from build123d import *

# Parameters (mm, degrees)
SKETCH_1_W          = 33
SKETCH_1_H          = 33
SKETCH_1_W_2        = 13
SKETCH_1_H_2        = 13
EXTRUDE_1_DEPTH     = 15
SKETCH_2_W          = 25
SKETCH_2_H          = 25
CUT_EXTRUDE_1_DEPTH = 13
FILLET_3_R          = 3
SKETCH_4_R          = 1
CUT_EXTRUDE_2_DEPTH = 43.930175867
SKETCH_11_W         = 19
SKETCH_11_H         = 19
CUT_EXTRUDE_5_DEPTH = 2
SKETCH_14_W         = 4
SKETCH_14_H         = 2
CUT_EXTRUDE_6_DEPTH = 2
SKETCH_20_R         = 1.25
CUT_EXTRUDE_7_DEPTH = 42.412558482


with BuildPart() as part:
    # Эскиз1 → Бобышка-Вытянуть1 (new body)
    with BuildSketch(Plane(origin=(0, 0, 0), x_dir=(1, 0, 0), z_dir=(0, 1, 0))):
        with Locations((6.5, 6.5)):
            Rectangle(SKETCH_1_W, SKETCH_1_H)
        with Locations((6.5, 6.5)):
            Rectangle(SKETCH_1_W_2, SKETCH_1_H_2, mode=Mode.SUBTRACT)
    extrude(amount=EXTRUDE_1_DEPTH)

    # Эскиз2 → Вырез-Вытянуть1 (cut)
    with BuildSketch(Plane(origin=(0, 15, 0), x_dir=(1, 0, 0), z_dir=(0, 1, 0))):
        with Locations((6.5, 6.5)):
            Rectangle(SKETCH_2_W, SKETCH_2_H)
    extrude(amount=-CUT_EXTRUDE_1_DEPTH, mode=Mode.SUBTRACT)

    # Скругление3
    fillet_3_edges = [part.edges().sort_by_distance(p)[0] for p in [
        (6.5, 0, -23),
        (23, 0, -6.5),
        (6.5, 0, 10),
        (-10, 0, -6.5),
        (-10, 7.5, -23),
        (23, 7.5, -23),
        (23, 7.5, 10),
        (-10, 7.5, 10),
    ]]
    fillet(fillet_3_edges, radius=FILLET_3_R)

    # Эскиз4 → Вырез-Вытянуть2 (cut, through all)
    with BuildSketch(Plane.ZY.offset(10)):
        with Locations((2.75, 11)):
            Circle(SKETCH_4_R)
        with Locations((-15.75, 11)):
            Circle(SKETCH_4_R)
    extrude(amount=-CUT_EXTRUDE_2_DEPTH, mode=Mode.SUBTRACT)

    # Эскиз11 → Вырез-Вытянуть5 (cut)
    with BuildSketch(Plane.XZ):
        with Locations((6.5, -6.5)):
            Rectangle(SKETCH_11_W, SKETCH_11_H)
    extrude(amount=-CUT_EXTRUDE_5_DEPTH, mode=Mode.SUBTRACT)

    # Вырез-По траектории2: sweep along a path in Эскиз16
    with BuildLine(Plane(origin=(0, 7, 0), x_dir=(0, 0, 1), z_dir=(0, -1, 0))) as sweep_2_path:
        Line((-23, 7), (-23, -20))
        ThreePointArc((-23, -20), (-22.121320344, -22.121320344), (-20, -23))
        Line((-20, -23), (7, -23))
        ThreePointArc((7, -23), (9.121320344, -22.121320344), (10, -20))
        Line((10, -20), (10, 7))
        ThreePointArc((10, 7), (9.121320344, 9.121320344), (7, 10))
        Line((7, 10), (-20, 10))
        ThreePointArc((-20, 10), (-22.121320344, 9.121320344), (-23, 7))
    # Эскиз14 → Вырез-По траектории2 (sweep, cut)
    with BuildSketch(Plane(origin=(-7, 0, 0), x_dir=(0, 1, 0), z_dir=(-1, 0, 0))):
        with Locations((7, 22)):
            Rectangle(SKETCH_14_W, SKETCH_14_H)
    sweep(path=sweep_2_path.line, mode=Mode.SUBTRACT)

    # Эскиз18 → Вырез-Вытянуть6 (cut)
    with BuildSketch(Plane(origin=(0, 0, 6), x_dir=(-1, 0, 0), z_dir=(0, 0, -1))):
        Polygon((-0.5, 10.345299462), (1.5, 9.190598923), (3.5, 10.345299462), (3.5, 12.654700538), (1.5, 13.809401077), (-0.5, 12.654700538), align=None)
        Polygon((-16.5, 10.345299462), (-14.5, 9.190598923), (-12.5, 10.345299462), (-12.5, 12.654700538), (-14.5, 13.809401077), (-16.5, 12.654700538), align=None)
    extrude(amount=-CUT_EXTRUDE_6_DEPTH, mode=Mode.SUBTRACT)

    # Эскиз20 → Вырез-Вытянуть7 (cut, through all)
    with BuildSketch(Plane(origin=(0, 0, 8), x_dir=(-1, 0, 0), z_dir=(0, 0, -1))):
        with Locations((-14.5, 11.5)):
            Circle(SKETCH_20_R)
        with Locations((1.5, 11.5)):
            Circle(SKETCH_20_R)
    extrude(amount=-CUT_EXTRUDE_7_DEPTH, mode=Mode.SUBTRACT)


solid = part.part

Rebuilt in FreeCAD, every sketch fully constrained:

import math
import FreeCAD as App
import Part
import Sketcher
Q = App.Units.Quantity


def edges_at(feature, points):
    """Names of the edges that pass closest to the given points."""
    edges = feature.Shape.Edges
    near = lambda p: min(range(len(edges)), key=lambda i: edges[i].distToShape(Part.Vertex(*p))[0])
    return sorted({f"Edge{near(p) + 1}" for p in points})


def add_polygon(sketch, points):
    """Adds a closed chain of lines whose ends are joined by coincident constraints."""
    first, n = sketch.GeometryCount, len(points)
    for a, b in zip(points, points[1:] + points[:1]):
        sketch.addGeometry(Part.LineSegment(App.Vector(*a, 0), App.Vector(*b, 0)), False)
    for i in range(n):
        sketch.addConstraint(Sketcher.Constraint("Coincident", first + i, 2, first + (i + 1) % n, 1))

doc = App.newDocument("Part")
body = doc.addObject("PartDesign::Body", "Body")

# Sketch on XZ plane
sketch1 = doc.addObject("Sketcher::SketchObject", "Sketch")
body.addObject(sketch1)
sketch1.AttachmentSupport = (doc.XZ_Plane, [""])
sketch1.MapMode = "FlatFace"
add_polygon(sketch1, [(-10, -23), (-10, 10), (23, 10), (23, -23)])  # lines 0-3
add_polygon(sketch1, [(13, 0), (0, 0), (0, -13), (13, -13)])  # lines 4-7
sketch1.addConstraint([
    Sketcher.Constraint("Vertical", 0),
    Sketcher.Constraint("Horizontal", 1),
    Sketcher.Constraint("Vertical", 2),
    Sketcher.Constraint("Horizontal", 3),
    Sketcher.Constraint("Horizontal", 4),
    Sketcher.Constraint("Vertical", 5),
    Sketcher.Constraint("Horizontal", 6),
    Sketcher.Constraint("Vertical", 7),
    Sketcher.Constraint("Coincident", 4, 2, -1, 1),
    Sketcher.Constraint("Equal", 3, 0),
    Sketcher.Constraint("Equal", 6, 5),
    Sketcher.Constraint("DistanceX", 1, 1, 1, 2, Q("33 mm")),
    Sketcher.Constraint("DistanceX", 4, 2, 4, 1, Q("13 mm")),
    Sketcher.Constraint("DistanceX", 0, 2, -1, 1, Q("10 mm")),
    Sketcher.Constraint("DistanceY", -1, 1, 0, 2, Q("10 mm")),
])
pad1 = doc.addObject("PartDesign::Pad", "Pad")
body.addObject(pad1)
pad1.Profile = sketch1
pad1.Length = 15
pad1.Reversed = True

# Sketch on XZ plane
sketch2 = doc.addObject("Sketcher::SketchObject", "Sketch001")
body.addObject(sketch2)
sketch2.AttachmentSupport = (doc.XZ_Plane, [""])
sketch2.MapMode = "FlatFace"
sketch2.AttachmentOffset = App.Placement(App.Vector(0, 0, -15), App.Rotation())
add_polygon(sketch2, [(-6, -19), (-6, 6), (19, 6), (19, -19)])  # lines 0-3
sketch2.addConstraint([
    Sketcher.Constraint("Vertical", 0),
    Sketcher.Constraint("Horizontal", 1),
    Sketcher.Constraint("Vertical", 2),
    Sketcher.Constraint("Horizontal", 3),
    Sketcher.Constraint("Equal", 3, 0),
    Sketcher.Constraint("DistanceX", 1, 1, 1, 2, Q("25 mm")),
    Sketcher.Constraint("DistanceX", 0, 2, -1, 1, Q("6 mm")),
    Sketcher.Constraint("DistanceY", -1, 1, 0, 2, Q("6 mm")),
])
pocket1 = doc.addObject("PartDesign::Pocket", "Pocket")
body.addObject(pocket1)
pocket1.Profile = sketch2
pocket1.Length = 13
pocket1.Reversed = True
doc.recompute()

fillet = doc.addObject("PartDesign::Fillet", "Fillet")
body.addObject(fillet)
fillet.Base = (pocket1, edges_at(pocket1, [
    (6.5, 0, -23),
    (23, 0, -6.5),
    (6.5, 0, 10),
    (-10, 0, -6.5),
    (-10, 7.5, -23),
    (23, 7.5, -23),
    (23, 7.5, 10),
    (-10, 7.5, 10),
]))
fillet.Radius = 3

# Sketch on YZ plane
sketch3 = doc.addObject("Sketcher::SketchObject", "Sketch002")
body.addObject(sketch3)
sketch3.AttachmentSupport = (doc.YZ_Plane, [""])
sketch3.MapMode = "FlatFace"
sketch3.AttachmentOffset = App.Placement(App.Vector(0, 0, -10), App.Rotation())
sketch3.addGeometry([
    Part.Circle(App.Vector(11, 2.8, 0), App.Vector(0, 0, 1), 1),
    Part.Circle(App.Vector(11, -15.8, 0), App.Vector(0, 0, 1), 1),
], False)
sketch3.addConstraint([
    Sketcher.Constraint("Equal", 0, 1),
    Sketcher.Constraint("Vertical", 0, 3, 1, 3),
    Sketcher.Constraint("Diameter", 0, Q("2 mm")),
    Sketcher.Constraint("DistanceX", -1, 1, 0, 3, Q("11 mm")),
    Sketcher.Constraint("DistanceY", 1, 3, 0, 3, Q("18.5 mm")),
    Sketcher.Constraint("DistanceY", -1, 1, 0, 3, Q("2.75 mm")),
])
pocket2 = doc.addObject("PartDesign::Pocket", "Pocket001")
body.addObject(pocket2)
pocket2.Profile = sketch3
pocket2.Type = "ThroughAll"
pocket2.Reversed = True

# Sketch on XZ plane
sketch4 = doc.addObject("Sketcher::SketchObject", "Sketch003")
body.addObject(sketch4)
sketch4.AttachmentSupport = (doc.XZ_Plane, [""])
sketch4.MapMode = "FlatFace"
add_polygon(sketch4, [(-3, 3), (-3, -16), (16, -16), (16, 3)])  # lines 0-3
sketch4.addConstraint([
    Sketcher.Constraint("Vertical", 0),
    Sketcher.Constraint("Horizontal", 1),
    Sketcher.Constraint("Vertical", 2),
    Sketcher.Constraint("Horizontal", 3),
    Sketcher.Constraint("Equal", 3, 0),
    Sketcher.Constraint("DistanceX", 1, 1, 1, 2, Q("19 mm")),
    Sketcher.Constraint("DistanceX", 0, 2, -1, 1, Q("3 mm")),
    Sketcher.Constraint("DistanceY", 0, 2, -1, 1, Q("16 mm")),
])
pocket3 = doc.addObject("PartDesign::Pocket", "Pocket002")
body.addObject(pocket3)
pocket3.Profile = sketch4
pocket3.Length = 2

# Sketch on YZ plane
sketch5 = doc.addObject("Sketcher::SketchObject", "Sketch004")
body.addObject(sketch5)
sketch5.AttachmentSupport = (doc.YZ_Plane, [""])
sketch5.MapMode = "FlatFace"
sketch5.AttachmentOffset = App.Placement(App.Vector(0, 0, -7), App.Rotation())
add_polygon(sketch5, [(5, -23), (5, -21), (9, -21), (9, -23)])  # lines 0-3
sketch5.addConstraint([
    Sketcher.Constraint("Vertical", 0),
    Sketcher.Constraint("Horizontal", 1),
    Sketcher.Constraint("Vertical", 2),
    Sketcher.Constraint("Horizontal", 3),
    Sketcher.Constraint("DistanceX", 1, 1, 1, 2, Q("4 mm")),
    Sketcher.Constraint("DistanceY", 0, 1, 0, 2, Q("2 mm")),
    Sketcher.Constraint("DistanceX", -1, 1, 0, 2, Q("5 mm")),
    Sketcher.Constraint("DistanceY", 0, 2, -1, 1, Q("21 mm")),
])

# Sketch on XZ plane
sketch6 = doc.addObject("Sketcher::SketchObject", "Sketch005")
body.addObject(sketch6)
sketch6.AttachmentSupport = (doc.XZ_Plane, [""])
sketch6.MapMode = "FlatFace"
sketch6.AttachmentOffset = App.Placement(App.Vector(0, 0, -7), App.Rotation())
sketch6.addGeometry([
    Part.LineSegment(App.Vector(-7, -23, 0), App.Vector(20, -23, 0)),  # 0
    Part.ArcOfCircle(Part.Circle(App.Vector(20, -20, 0), App.Vector(0, 0, 1), 3), math.radians(-90), math.radians(0)),  # 1
    Part.LineSegment(App.Vector(23, -20, 0), App.Vector(23, 7, 0)),  # 2
    Part.ArcOfCircle(Part.Circle(App.Vector(20, 7, 0), App.Vector(0, 0, 1), 3), math.radians(0), math.radians(90)),  # 3
    Part.LineSegment(App.Vector(20, 10, 0), App.Vector(-7, 10, 0)),  # 4
    Part.ArcOfCircle(Part.Circle(App.Vector(-7, 7, 0), App.Vector(0, 0, 1), 3), math.radians(90), math.radians(180)),  # 5
    Part.LineSegment(App.Vector(-10, 7, 0), App.Vector(-10, -20, 0)),  # 6
    Part.ArcOfCircle(Part.Circle(App.Vector(-7, -20, 0), App.Vector(0, 0, 1), 3), math.radians(180), math.radians(270)),  # 7
], False)
sketch6.addConstraint([
    Sketcher.Constraint("Tangent", 0, 2, 1, 1),
    Sketcher.Constraint("Tangent", 1, 2, 2, 1),
    Sketcher.Constraint("Tangent", 2, 2, 3, 1),
    Sketcher.Constraint("Tangent", 3, 2, 4, 1),
    Sketcher.Constraint("Tangent", 4, 2, 5, 1),
    Sketcher.Constraint("Tangent", 5, 2, 6, 1),
    Sketcher.Constraint("Tangent", 6, 2, 7, 1),
    Sketcher.Constraint("Tangent", 7, 2, 0, 1),
    Sketcher.Constraint("Horizontal", 0),
    Sketcher.Constraint("Vertical", 2),
    Sketcher.Constraint("Horizontal", 4),
    Sketcher.Constraint("Vertical", 6),
    Sketcher.Constraint("Equal", 1, 3),
    Sketcher.Constraint("Equal", 3, 5),
    Sketcher.Constraint("Equal", 5, 7),
    Sketcher.Constraint("Equal", 4, 2),
    Sketcher.Constraint("Radius", 1, Q("3 mm")),
    Sketcher.Constraint("DistanceX", 0, 1, 0, 2, Q("27 mm")),
    Sketcher.Constraint("DistanceX", -1, 1, 1, 3, Q("20 mm")),
    Sketcher.Constraint("DistanceY", 1, 3, -1, 1, Q("20 mm")),
])
doc.recompute()

subtractivepipe = doc.addObject("PartDesign::SubtractivePipe", "SubtractivePipe")
body.addObject(subtractivepipe)
subtractivepipe.Profile = sketch5
subtractivepipe.Spine = (sketch6, ["Edge1", "Edge2", "Edge3", "Edge4", "Edge5", "Edge6", "Edge7", "Edge8"])

# Sketch on XY plane
sketch7 = doc.addObject("Sketcher::SketchObject", "Sketch006")
body.addObject(sketch7)
sketch7.AttachmentSupport = (doc.XY_Plane, [""])
sketch7.MapMode = "FlatFace"
sketch7.AttachmentOffset = App.Placement(App.Vector(0, 0, 6), App.Rotation())
add_polygon(sketch7, [(0.5, 10.3), (-1.5, 9.2), (-3.5, 10.3), (-3.5, 12.7), (-1.5, 13.8), (0.5, 12.7)])  # lines 0-5
add_polygon(sketch7, [(16.5, 10.3), (14.5, 9.2), (12.5, 10.3), (12.5, 12.7), (14.5, 13.8), (16.5, 12.7)])  # lines 6-11
sketch7.addConstraint([
    Sketcher.Constraint("Vertical", 2),
    Sketcher.Constraint("Vertical", 5),
    Sketcher.Constraint("Vertical", 8),
    Sketcher.Constraint("Vertical", 11),
    Sketcher.Constraint("Parallel", 0, 3),
    Sketcher.Constraint("Parallel", 1, 4),
    Sketcher.Constraint("Parallel", 3, 6),
    Sketcher.Constraint("Parallel", 4, 7),
    Sketcher.Constraint("Parallel", 6, 9),
    Sketcher.Constraint("Parallel", 7, 10),
    Sketcher.Constraint("Horizontal", 2, 2, 4, 2),
    Sketcher.Constraint("Horizontal", 1, 2, 5, 2),
    Sketcher.Constraint("Horizontal", 0, 2, 6, 2),
    Sketcher.Constraint("Horizontal", 5, 2, 7, 2),
    Sketcher.Constraint("Horizontal", 4, 2, 8, 2),
    Sketcher.Constraint("Horizontal", 3, 2, 9, 2),
    Sketcher.Constraint("Horizontal", 8, 2, 10, 2),
    Sketcher.Constraint("Vertical", 0, 2, 3, 2),
    Sketcher.Constraint("Angle", 0, Q("-150 deg")),
    Sketcher.Constraint("DistanceX", 1, 2, 0, 2, Q("2 mm")),
    Sketcher.Constraint("DistanceX", 5, 2, 6, 2, Q("14 mm")),
    Sketcher.Constraint("DistanceX", 0, 2, -1, 1, Q("1.5 mm")),
    Sketcher.Constraint("DistanceY", 2, 1, 2, 2, Q("2.309401 mm")),
    Sketcher.Constraint("DistanceY", -1, 1, 0, 2, Q("9.190599 mm")),
])
pocket4 = doc.addObject("PartDesign::Pocket", "Pocket003")
body.addObject(pocket4)
pocket4.Profile = sketch7
pocket4.Length = 2
pocket4.Reversed = True

# Sketch on XY plane
sketch8 = doc.addObject("Sketcher::SketchObject", "Sketch007")
body.addObject(sketch8)
sketch8.AttachmentSupport = (doc.XY_Plane, [""])
sketch8.MapMode = "FlatFace"
sketch8.AttachmentOffset = App.Placement(App.Vector(0, 0, 8), App.Rotation())
sketch8.addGeometry([
    Part.Circle(App.Vector(14.5, 11.5, 0), App.Vector(0, 0, 1), 1.2),
    Part.Circle(App.Vector(-1.5, 11.5, 0), App.Vector(0, 0, 1), 1.2),
], False)
sketch8.addConstraint([
    Sketcher.Constraint("Equal", 0, 1),
    Sketcher.Constraint("Horizontal", 0, 3, 1, 3),
    Sketcher.Constraint("Diameter", 0, Q("2.5 mm")),
    Sketcher.Constraint("DistanceX", 1, 3, 0, 3, Q("16 mm")),
    Sketcher.Constraint("DistanceX", -1, 1, 0, 3, Q("14.5 mm")),
    Sketcher.Constraint("DistanceY", -1, 1, 0, 3, Q("11.5 mm")),
])
pocket5 = doc.addObject("PartDesign::Pocket", "Pocket004")
body.addObject(pocket5)
pocket5.Profile = sketch8
pocket5.Type = "ThroughAll"
pocket5.Reversed = True

doc.recompute()
